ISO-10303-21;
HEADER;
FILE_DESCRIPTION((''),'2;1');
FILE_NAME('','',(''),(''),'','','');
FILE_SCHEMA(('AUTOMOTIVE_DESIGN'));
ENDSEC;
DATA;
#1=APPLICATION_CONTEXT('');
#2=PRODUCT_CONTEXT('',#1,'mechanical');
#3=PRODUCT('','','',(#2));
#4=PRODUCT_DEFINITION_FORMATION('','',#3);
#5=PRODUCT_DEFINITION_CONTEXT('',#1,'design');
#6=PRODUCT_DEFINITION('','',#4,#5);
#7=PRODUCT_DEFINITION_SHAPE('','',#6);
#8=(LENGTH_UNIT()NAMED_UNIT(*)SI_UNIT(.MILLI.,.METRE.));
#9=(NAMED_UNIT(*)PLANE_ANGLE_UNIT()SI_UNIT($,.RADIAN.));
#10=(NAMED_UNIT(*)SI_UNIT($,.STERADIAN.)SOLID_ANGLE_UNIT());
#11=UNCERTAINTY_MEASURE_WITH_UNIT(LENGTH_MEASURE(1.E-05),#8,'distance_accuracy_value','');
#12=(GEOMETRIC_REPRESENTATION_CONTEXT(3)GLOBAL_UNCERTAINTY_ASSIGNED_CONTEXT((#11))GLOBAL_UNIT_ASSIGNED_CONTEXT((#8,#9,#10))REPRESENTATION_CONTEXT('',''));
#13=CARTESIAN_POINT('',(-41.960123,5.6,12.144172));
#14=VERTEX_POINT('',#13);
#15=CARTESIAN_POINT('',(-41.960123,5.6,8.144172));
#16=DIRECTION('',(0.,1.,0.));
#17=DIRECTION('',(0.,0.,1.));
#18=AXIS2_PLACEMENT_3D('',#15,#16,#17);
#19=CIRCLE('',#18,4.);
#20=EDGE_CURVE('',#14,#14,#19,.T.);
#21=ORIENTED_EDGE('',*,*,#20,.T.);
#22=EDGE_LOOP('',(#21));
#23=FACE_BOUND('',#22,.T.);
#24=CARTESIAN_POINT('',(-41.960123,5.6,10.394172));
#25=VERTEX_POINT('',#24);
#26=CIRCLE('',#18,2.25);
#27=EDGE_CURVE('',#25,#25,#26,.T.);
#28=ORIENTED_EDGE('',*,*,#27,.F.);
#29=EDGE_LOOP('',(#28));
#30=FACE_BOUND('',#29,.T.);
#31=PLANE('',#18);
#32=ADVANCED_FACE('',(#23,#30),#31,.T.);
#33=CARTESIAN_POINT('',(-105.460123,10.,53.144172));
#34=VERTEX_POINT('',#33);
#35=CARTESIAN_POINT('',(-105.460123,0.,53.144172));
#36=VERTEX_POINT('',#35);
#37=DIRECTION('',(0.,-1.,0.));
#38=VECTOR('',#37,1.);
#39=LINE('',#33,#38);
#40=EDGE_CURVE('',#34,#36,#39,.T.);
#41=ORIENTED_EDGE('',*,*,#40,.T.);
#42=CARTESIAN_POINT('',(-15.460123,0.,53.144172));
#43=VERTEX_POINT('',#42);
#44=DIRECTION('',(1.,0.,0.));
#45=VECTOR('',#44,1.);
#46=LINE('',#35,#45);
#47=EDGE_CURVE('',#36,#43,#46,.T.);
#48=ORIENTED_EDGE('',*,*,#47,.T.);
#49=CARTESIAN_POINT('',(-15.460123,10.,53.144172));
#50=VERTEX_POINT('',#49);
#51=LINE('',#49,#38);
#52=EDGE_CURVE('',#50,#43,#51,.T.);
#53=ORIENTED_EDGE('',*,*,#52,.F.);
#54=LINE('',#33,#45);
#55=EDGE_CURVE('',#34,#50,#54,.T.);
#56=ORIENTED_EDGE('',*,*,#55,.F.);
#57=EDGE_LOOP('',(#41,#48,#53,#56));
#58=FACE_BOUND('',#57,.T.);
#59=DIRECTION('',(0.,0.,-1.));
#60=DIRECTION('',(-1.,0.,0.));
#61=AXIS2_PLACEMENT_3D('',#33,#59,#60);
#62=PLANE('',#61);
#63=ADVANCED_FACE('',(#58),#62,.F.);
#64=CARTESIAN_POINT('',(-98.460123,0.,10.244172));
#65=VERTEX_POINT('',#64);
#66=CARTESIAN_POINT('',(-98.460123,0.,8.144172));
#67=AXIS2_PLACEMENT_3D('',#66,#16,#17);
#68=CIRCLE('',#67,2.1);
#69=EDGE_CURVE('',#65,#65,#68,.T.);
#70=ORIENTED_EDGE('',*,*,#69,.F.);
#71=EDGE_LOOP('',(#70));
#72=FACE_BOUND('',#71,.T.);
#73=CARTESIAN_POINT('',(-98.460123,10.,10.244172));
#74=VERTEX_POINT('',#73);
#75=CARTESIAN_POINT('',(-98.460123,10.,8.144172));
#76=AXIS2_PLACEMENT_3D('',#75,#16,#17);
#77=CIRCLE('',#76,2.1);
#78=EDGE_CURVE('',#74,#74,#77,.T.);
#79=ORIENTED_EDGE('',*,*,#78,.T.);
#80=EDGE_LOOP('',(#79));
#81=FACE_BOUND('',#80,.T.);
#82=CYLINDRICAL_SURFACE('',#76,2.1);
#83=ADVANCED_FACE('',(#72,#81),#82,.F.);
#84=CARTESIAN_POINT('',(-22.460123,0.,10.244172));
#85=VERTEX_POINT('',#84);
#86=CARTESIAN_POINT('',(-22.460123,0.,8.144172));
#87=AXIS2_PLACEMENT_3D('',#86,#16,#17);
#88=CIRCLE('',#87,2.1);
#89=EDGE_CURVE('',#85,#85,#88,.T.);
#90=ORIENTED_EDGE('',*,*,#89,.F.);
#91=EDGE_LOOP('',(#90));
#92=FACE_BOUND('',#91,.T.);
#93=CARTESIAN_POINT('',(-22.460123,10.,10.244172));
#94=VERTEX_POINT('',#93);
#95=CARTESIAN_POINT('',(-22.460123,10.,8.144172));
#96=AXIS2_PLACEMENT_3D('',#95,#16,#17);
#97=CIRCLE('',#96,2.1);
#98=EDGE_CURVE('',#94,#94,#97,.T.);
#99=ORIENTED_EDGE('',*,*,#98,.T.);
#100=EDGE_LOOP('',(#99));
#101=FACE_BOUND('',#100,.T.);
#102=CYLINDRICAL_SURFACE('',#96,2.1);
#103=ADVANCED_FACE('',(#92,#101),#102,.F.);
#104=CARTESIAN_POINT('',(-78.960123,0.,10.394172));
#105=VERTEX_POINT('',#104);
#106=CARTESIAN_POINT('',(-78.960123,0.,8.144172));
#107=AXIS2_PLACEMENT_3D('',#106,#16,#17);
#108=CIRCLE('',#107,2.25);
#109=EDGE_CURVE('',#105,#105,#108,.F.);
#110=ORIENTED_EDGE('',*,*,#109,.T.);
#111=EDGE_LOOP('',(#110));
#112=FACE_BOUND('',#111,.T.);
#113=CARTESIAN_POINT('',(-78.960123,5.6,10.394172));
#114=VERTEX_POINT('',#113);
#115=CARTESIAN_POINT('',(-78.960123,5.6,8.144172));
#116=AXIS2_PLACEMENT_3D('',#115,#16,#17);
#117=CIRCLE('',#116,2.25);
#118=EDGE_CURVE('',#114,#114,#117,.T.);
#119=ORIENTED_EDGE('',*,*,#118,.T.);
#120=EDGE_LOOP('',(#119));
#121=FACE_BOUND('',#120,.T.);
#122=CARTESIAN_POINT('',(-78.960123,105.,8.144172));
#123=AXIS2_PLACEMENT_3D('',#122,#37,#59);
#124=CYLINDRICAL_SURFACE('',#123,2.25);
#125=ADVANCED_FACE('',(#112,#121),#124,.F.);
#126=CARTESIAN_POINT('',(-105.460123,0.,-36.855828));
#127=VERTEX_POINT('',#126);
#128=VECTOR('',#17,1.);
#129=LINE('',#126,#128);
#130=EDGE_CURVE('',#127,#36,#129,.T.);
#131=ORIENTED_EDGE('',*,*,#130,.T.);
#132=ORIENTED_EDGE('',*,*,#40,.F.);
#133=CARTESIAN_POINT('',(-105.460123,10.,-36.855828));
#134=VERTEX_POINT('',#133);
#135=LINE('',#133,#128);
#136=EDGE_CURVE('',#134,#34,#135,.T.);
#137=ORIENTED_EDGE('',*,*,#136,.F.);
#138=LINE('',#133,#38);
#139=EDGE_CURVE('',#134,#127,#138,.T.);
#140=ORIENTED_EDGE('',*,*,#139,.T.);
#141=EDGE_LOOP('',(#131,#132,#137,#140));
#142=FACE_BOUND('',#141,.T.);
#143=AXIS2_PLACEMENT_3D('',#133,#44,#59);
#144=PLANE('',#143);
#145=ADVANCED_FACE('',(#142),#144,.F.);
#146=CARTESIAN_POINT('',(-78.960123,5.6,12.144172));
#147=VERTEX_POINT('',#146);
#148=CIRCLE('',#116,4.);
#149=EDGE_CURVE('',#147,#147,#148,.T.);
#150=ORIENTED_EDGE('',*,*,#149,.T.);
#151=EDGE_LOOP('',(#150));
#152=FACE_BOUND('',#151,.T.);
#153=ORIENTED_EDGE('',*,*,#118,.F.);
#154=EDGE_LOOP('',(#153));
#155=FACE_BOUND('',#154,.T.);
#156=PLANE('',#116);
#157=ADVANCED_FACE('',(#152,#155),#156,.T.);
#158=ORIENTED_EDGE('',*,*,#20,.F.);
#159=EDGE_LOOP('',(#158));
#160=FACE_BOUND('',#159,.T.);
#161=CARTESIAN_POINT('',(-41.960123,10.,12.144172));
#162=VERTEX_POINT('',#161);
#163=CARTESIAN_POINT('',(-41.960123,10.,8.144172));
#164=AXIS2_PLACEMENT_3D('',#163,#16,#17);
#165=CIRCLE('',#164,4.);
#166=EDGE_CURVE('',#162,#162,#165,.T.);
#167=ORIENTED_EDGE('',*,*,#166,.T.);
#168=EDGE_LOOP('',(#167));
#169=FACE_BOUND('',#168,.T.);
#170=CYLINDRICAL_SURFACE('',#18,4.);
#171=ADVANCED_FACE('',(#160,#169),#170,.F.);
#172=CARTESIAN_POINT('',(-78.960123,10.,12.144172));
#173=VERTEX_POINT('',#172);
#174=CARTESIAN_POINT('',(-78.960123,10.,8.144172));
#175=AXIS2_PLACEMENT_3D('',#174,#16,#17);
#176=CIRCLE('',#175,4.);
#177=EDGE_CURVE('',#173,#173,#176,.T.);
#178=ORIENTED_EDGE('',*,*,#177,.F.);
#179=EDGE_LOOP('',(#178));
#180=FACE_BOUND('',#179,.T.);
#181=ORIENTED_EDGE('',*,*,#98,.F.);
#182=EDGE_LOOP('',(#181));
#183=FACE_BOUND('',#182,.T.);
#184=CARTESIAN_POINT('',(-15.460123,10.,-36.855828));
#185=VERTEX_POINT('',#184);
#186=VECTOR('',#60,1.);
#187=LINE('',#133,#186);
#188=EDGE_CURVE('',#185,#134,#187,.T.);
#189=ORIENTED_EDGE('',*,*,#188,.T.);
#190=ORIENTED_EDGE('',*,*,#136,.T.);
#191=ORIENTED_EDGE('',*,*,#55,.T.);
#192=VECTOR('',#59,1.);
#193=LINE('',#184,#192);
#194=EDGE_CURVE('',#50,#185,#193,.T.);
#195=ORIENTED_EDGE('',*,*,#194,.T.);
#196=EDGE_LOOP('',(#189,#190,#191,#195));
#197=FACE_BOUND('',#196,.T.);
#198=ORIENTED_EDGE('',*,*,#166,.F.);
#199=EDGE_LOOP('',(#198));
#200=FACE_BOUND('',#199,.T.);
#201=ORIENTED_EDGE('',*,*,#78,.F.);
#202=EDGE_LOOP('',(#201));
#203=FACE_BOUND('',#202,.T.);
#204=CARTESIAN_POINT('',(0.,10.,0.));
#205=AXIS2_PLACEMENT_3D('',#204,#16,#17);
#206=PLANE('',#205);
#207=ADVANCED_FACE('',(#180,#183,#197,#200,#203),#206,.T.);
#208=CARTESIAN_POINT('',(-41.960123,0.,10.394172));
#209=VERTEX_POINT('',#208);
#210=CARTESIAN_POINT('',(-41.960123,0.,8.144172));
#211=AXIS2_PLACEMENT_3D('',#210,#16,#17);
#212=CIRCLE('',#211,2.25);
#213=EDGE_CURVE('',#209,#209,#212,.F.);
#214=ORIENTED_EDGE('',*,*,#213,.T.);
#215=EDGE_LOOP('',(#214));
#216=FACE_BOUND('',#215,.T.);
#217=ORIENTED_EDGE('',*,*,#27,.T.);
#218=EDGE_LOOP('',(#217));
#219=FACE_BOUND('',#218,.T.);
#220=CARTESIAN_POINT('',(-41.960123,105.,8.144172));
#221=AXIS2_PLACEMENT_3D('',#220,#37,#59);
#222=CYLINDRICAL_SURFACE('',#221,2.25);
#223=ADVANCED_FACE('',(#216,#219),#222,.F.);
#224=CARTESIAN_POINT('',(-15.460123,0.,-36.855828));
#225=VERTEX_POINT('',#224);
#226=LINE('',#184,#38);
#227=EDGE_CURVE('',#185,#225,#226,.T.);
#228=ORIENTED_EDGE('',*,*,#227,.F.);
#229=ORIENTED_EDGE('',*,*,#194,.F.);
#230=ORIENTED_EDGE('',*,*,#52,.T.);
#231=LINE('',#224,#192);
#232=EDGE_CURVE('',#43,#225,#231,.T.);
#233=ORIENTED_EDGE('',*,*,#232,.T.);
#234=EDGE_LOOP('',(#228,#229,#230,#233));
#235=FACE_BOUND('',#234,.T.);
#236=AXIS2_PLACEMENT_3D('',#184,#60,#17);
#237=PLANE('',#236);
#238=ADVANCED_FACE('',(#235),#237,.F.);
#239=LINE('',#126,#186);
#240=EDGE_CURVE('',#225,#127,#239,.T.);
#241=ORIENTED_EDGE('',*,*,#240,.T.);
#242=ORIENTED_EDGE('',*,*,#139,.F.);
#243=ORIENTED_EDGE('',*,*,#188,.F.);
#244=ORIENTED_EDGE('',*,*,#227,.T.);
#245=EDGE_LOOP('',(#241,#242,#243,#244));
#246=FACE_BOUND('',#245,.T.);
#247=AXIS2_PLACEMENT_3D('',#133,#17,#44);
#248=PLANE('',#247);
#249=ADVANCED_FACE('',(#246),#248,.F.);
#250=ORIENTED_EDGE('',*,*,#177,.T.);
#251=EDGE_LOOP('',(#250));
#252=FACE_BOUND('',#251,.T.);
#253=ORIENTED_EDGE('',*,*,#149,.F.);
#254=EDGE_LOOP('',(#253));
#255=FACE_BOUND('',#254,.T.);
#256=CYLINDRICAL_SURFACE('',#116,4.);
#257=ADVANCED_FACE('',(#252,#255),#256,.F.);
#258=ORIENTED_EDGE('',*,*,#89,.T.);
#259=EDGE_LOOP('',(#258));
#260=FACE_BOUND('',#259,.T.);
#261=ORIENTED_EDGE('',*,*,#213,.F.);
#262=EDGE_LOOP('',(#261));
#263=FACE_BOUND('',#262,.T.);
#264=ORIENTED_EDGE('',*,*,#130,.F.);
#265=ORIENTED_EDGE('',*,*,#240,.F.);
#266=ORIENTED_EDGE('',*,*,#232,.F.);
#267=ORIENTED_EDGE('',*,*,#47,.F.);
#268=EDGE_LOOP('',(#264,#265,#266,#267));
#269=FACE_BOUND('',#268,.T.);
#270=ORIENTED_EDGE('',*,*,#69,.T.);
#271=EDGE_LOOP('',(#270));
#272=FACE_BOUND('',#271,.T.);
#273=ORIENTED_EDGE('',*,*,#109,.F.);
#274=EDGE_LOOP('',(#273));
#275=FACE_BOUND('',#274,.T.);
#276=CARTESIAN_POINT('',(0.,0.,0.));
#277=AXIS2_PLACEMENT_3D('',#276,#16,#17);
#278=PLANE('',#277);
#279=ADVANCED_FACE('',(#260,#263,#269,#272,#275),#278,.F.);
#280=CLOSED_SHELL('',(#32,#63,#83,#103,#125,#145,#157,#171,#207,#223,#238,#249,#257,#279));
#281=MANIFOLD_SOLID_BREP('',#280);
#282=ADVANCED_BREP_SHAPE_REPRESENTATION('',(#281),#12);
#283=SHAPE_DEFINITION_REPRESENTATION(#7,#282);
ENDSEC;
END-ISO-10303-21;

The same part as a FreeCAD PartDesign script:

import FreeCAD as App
import Part
import Sketcher
Q = App.Units.Quantity

doc = App.newDocument("Part")
body = doc.addObject("PartDesign::Body", "Body")

# Sketch on XZ plane
sketch1 = doc.addObject("Sketcher::SketchObject", "Sketch")
body.addObject(sketch1)
sketch1.AttachmentSupport = (doc.XZ_Plane, [""])
sketch1.MapMode = "FlatFace"
sketch1.addGeometry(Part.LineSegment(App.Vector(-105, -37, 0), App.Vector(-105, 53, 0)), False)
sketch1.addGeometry(Part.LineSegment(App.Vector(-105, 53, 0), App.Vector(-15, 53, 0)), False)
sketch1.addGeometry(Part.LineSegment(App.Vector(-15, 53, 0), App.Vector(-15, -37, 0)), False)
sketch1.addGeometry(Part.LineSegment(App.Vector(-15, -37, 0), App.Vector(-105, -37, 0)), False)
sketch1.addConstraint(Sketcher.Constraint("Coincident", 0, 2, 1, 1))
sketch1.addConstraint(Sketcher.Constraint("Coincident", 1, 2, 2, 1))
sketch1.addConstraint(Sketcher.Constraint("Coincident", 2, 2, 3, 1))
sketch1.addConstraint(Sketcher.Constraint("Coincident", 3, 2, 0, 1))
sketch1.addConstraint(Sketcher.Constraint("Vertical", 0))
sketch1.addConstraint(Sketcher.Constraint("Horizontal", 1))
sketch1.addConstraint(Sketcher.Constraint("Vertical", 2))
sketch1.addConstraint(Sketcher.Constraint("Horizontal", 3))
sketch1.addConstraint(Sketcher.Constraint("Equal", 3, 0))
sketch1.addConstraint(Sketcher.Constraint("DistanceX", 1, 1, 1, 2, Q("90 mm")))
sketch1.addConstraint(Sketcher.Constraint("DistanceY", -1, 1, 0, 2, Q("53.144172 mm")))
sketch1.addConstraint(Sketcher.Constraint("DistanceX", 0, 2, -1, 1, Q("105.460123 mm")))
pad1 = doc.addObject("PartDesign::Pad", "Pad")
body.addObject(pad1)
pad1.Profile = sketch1
pad1.Length = 10
pad1.Reversed = True

# Sketch on XZ plane
sketch2 = doc.addObject("Sketcher::SketchObject", "Sketch001")
body.addObject(sketch2)
sketch2.AttachmentSupport = (doc.XZ_Plane, [""])
sketch2.MapMode = "FlatFace"
sketch2.AttachmentOffset = App.Placement(App.Vector(0, 0, -10), App.Rotation())
sketch2.addGeometry(Part.Circle(App.Vector(-79, 8.1, 0), App.Vector(0, 0, 1), 2.2), False)
sketch2.addGeometry(Part.Circle(App.Vector(-42, 8.1, 0), App.Vector(0, 0, 1), 2.2), False)
sketch2.addConstraint(Sketcher.Constraint("Equal", 0, 1))
sketch2.addConstraint(Sketcher.Constraint("Horizontal", 0, 3, 1, 3))
sketch2.addConstraint(Sketcher.Constraint("Diameter", 0, Q("4.5 mm")))
sketch2.addConstraint(Sketcher.Constraint("DistanceX", 0, 3, 1, 3, Q("37 mm")))
sketch2.addConstraint(Sketcher.Constraint("DistanceY", -1, 1, 0, 3, Q("8.144172 mm")))
sketch2.addConstraint(Sketcher.Constraint("DistanceX", 0, 3, -1, 1, Q("78.960123 mm")))
pocket1 = doc.addObject("PartDesign::Pocket", "Pocket")
body.addObject(pocket1)
pocket1.Profile = sketch2
pocket1.Type = "ThroughAll"
pocket1.Midplane = True

# Sketch on XZ plane
sketch3 = doc.addObject("Sketcher::SketchObject", "Sketch002")
body.addObject(sketch3)
sketch3.AttachmentSupport = (doc.XZ_Plane, [""])
sketch3.MapMode = "FlatFace"
sketch3.AttachmentOffset = App.Placement(App.Vector(0, 0, -10), App.Rotation())
sketch3.addGeometry(Part.Circle(App.Vector(-79, 8.1, 0), App.Vector(0, 0, 1), 4), False)
sketch3.addGeometry(Part.Circle(App.Vector(-79, 8.1, 0), App.Vector(0, 0, 1), 2.2), False)
sketch3.addGeometry(Part.Circle(App.Vector(-42, 8.1, 0), App.Vector(0, 0, 1), 4), False)
sketch3.addGeometry(Part.Circle(App.Vector(-42, 8.1, 0), App.Vector(0, 0, 1), 2.2), False)
sketch3.addConstraint(Sketcher.Constraint("Coincident", 1, 3, 0, 3))
sketch3.addConstraint(Sketcher.Constraint("Coincident", 3, 3, 2, 3))
sketch3.addConstraint(Sketcher.Constraint("Equal", 0, 2))
sketch3.addConstraint(Sketcher.Constraint("Equal", 1, 3))
sketch3.addConstraint(Sketcher.Constraint("Horizontal", 1, 3, 2, 3))
sketch3.addConstraint(Sketcher.Constraint("Diameter", 0, Q("8 mm")))
sketch3.addConstraint(Sketcher.Constraint("Diameter", 1, Q("4.5 mm")))
sketch3.addConstraint(Sketcher.Constraint("DistanceX", 0, 3, 2, 3, Q("37 mm")))
sketch3.addConstraint(Sketcher.Constraint("DistanceY", -1, 1, 0, 3, Q("8.144172 mm")))
sketch3.addConstraint(Sketcher.Constraint("DistanceX", 0, 3, -1, 1, Q("78.960123 mm")))
pocket2 = doc.addObject("PartDesign::Pocket", "Pocket001")
body.addObject(pocket2)
pocket2.Profile = sketch3
pocket2.Length = 4.4
pocket2.Reversed = True

# Sketch on XZ plane
sketch4 = doc.addObject("Sketcher::SketchObject", "Sketch003")
body.addObject(sketch4)
sketch4.AttachmentSupport = (doc.XZ_Plane, [""])
sketch4.MapMode = "FlatFace"
sketch4.AttachmentOffset = App.Placement(App.Vector(0, 0, -10), App.Rotation())
sketch4.addGeometry(Part.Circle(App.Vector(-98.5, 8.1, 0), App.Vector(0, 0, 1), 2.1), False)
sketch4.addGeometry(Part.Circle(App.Vector(-22.5, 8.1, 0), App.Vector(0, 0, 1), 2.1), False)
sketch4.addConstraint(Sketcher.Constraint("Equal", 0, 1))
sketch4.addConstraint(Sketcher.Constraint("Horizontal", 0, 3, 1, 3))
sketch4.addConstraint(Sketcher.Constraint("Diameter", 0, Q("4.2 mm")))
sketch4.addConstraint(Sketcher.Constraint("DistanceX", 0, 3, 1, 3, Q("76 mm")))
sketch4.addConstraint(Sketcher.Constraint("DistanceY", -1, 1, 0, 3, Q("8.144172 mm")))
sketch4.addConstraint(Sketcher.Constraint("DistanceX", 0, 3, -1, 1, Q("98.460123 mm")))
doc.recompute()
hole = doc.addObject("PartDesign::Hole", "Hole")
body.addObject(hole)
hole.Profile = sketch4
hole.ThreadType = "None"
hole.Diameter = 4.2
hole.DepthType = "ThroughAll"
hole.Reversed = True

doc.recompute()
